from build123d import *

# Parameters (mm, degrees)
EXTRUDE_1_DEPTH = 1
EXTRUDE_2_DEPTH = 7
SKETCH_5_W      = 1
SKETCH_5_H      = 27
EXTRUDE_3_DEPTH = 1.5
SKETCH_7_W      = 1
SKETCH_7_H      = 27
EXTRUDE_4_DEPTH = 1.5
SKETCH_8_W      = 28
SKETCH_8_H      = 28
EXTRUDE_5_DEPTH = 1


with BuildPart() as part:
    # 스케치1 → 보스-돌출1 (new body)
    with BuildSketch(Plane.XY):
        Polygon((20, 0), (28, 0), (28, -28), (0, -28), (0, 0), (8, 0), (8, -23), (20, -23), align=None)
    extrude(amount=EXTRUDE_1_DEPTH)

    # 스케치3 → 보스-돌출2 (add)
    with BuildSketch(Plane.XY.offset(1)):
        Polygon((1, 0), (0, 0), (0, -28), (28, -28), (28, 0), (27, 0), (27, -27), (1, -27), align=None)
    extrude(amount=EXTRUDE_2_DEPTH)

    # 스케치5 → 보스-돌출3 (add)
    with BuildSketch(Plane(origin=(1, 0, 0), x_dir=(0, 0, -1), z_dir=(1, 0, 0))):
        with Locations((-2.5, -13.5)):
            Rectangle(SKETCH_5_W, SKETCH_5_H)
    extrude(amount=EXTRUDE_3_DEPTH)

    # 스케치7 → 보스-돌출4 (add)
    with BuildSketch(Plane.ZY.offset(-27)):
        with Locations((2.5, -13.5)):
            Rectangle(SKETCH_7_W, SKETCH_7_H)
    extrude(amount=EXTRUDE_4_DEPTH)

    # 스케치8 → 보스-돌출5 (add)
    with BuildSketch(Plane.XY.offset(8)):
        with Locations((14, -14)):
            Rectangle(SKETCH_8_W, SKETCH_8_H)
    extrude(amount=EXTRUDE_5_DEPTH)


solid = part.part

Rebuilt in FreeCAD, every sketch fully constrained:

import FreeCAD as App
import Part
import Sketcher

V = App.Vector
Q = App.Units.Quantity

doc = App.newDocument("Part")
body = doc.addObject("PartDesign::Body", "Body")

# Sketch on XY plane
sketch1 = body.newObject("Sketcher::SketchObject", "Sketch")
sketch1.AttachmentSupport = (doc.getObject("XY_Plane"), [""])
sketch1.MapMode = "FlatFace"
sketch1.addGeometry([
    Part.LineSegment(V(28, 0, 0), V(20, 0, 0)),  # 0
    Part.LineSegment(V(20, 0, 0), V(20, -23, 0)),  # 1
    Part.LineSegment(V(20, -23, 0), V(8, -23, 0)),  # 2
    Part.LineSegment(V(8, -23, 0), V(8, 0, 0)),  # 3
    Part.LineSegment(V(8, 0, 0), V(0, 0, 0)),  # 4
    Part.LineSegment(V(0, 0, 0), V(0, -28, 0)),  # 5
    Part.LineSegment(V(0, -28, 0), V(28, -28, 0)),  # 6
    Part.LineSegment(V(28, -28, 0), V(28, 0, 0)),  # 7
], False)
sketch1.addConstraint([
    Sketcher.Constraint("Coincident", 0, 2, 1, 1),
    Sketcher.Constraint("Coincident", 1, 2, 2, 1),
    Sketcher.Constraint("Coincident", 2, 2, 3, 1),
    Sketcher.Constraint("Coincident", 3, 2, 4, 1),
    Sketcher.Constraint("Coincident", 4, 2, 5, 1),
    Sketcher.Constraint("Coincident", 5, 2, 6, 1),
    Sketcher.Constraint("Coincident", 6, 2, 7, 1),
    Sketcher.Constraint("Coincident", 7, 2, 0, 1),
    Sketcher.Constraint("Horizontal", 0),
    Sketcher.Constraint("Vertical", 1),
    Sketcher.Constraint("Horizontal", 2),
    Sketcher.Constraint("Vertical", 3),
    Sketcher.Constraint("Horizontal", 4),
    Sketcher.Constraint("Vertical", 5),
    Sketcher.Constraint("Horizontal", 6),
    Sketcher.Constraint("Vertical", 7),
    Sketcher.Constraint("Coincident", 4, 2, -1, 1),
    Sketcher.Constraint("PointOnObject", 0, 2, -1),
    Sketcher.Constraint("Equal", 0, 4),
    Sketcher.Constraint("Equal", 6, 5),
    Sketcher.Constraint("DistanceX", 0, 2, 0, 1, Q("8 mm")),
    Sketcher.Constraint("DistanceX", 2, 2, 2, 1, Q("12 mm")),
    Sketcher.Constraint("DistanceY", 1, 2, 1, 1, Q("23 mm")),
])
pad1 = body.newObject("PartDesign::Pad", "Pad")
pad1.Profile = sketch1
pad1.Length = 1

# Sketch on XY plane
sketch2 = body.newObject("Sketcher::SketchObject", "Sketch001")
sketch2.AttachmentSupport = (doc.getObject("XY_Plane"), [""])
sketch2.MapMode = "FlatFace"
sketch2.AttachmentOffset = App.Placement(V(0, 0, 1), App.Rotation())
sketch2.addGeometry([
    Part.LineSegment(V(1, 0, 0), V(0, 0, 0)),  # 0
    Part.LineSegment(V(0, 0, 0), V(0, -28, 0)),  # 1
    Part.LineSegment(V(0, -28, 0), V(28, -28, 0)),  # 2
    Part.LineSegment(V(28, -28, 0), V(28, 0, 0)),  # 3
    Part.LineSegment(V(28, 0, 0), V(27, 0, 0)),  # 4
    Part.LineSegment(V(27, 0, 0), V(27, -27, 0)),  # 5
    Part.LineSegment(V(27, -27, 0), V(1, -27, 0)),  # 6
    Part.LineSegment(V(1, -27, 0), V(1, 0, 0)),  # 7
], False)
sketch2.addConstraint([
    Sketcher.Constraint("Coincident", 0, 2, 1, 1),
    Sketcher.Constraint("Coincident", 1, 2, 2, 1),
    Sketcher.Constraint("Coincident", 2, 2, 3, 1),
    Sketcher.Constraint("Coincident", 3, 2, 4, 1),
    Sketcher.Constraint("Coincident", 4, 2, 5, 1),
    Sketcher.Constraint("Coincident", 5, 2, 6, 1),
    Sketcher.Constraint("Coincident", 6, 2, 7, 1),
    Sketcher.Constraint("Coincident", 7, 2, 0, 1),
    Sketcher.Constraint("Horizontal", 0),
    Sketcher.Constraint("Vertical", 1),
    Sketcher.Constraint("Horizontal", 2),
    Sketcher.Constraint("Vertical", 3),
    Sketcher.Constraint("Horizontal", 4),
    Sketcher.Constraint("Vertical", 5),
    Sketcher.Constraint("Horizontal", 6),
    Sketcher.Constraint("Vertical", 7),
    Sketcher.Constraint("Coincident", 0, 2, -1, 1),
    Sketcher.Constraint("PointOnObject", 3, 2, -1),
    Sketcher.Constraint("Equal", 0, 4),
    Sketcher.Constraint("Equal", 2, 1),
    Sketcher.Constraint("DistanceX", 0, 2, 0, 1, Q("1 mm")),
    Sketcher.Constraint("DistanceX", 2, 1, 2, 2, Q("28 mm")),
    Sketcher.Constraint("DistanceY", 5, 2, 5, 1, Q("27 mm")),
])
pad2 = body.newObject("PartDesign::Pad", "Pad001")
pad2.Profile = sketch2
pad2.Length = 7

# Sketch on YZ plane
sketch3 = body.newObject("Sketcher::SketchObject", "Sketch002")
sketch3.AttachmentSupport = (doc.getObject("YZ_Plane"), [""])
sketch3.MapMode = "FlatFace"
sketch3.AttachmentOffset = App.Placement(V(0, 0, 1), App.Rotation())
sketch3.addGeometry([
    Part.LineSegment(V(0, 3, 0), V(-27, 3, 0)),
    Part.LineSegment(V(-27, 3, 0), V(-27, 2, 0)),
    Part.LineSegment(V(-27, 2, 0), V(0, 2, 0)),
    Part.LineSegment(V(0, 2, 0), V(0, 3, 0)),
], False)
sketch3.addConstraint([
    Sketcher.Constraint("Coincident", 0, 2, 1, 1),
    Sketcher.Constraint("Coincident", 1, 2, 2, 1),
    Sketcher.Constraint("Coincident", 2, 2, 3, 1),
    Sketcher.Constraint("Coincident", 3, 2, 0, 1),
    Sketcher.Constraint("Horizontal", 0),
    Sketcher.Constraint("Vertical", 1),
    Sketcher.Constraint("Horizontal", 2),
    Sketcher.Constraint("Vertical", 3),
    Sketcher.Constraint("PointOnObject", 2, 2, -2),
    Sketcher.Constraint("DistanceX", 0, 2, 0, 1, Q("27 mm")),
    Sketcher.Constraint("DistanceY", 1, 2, 1, 1, Q("1 mm")),
    Sketcher.Constraint("DistanceY", -1, 1, 0, 2, Q("3 mm")),
])
pad3 = body.newObject("PartDesign::Pad", "Pad002")
pad3.Profile = sketch3
pad3.Length = 1.5

# Sketch on YZ plane
sketch4 = body.newObject("Sketcher::SketchObject", "Sketch003")
sketch4.AttachmentSupport = (doc.getObject("YZ_Plane"), [""])
sketch4.MapMode = "FlatFace"
sketch4.AttachmentOffset = App.Placement(V(0, 0, 27), App.Rotation())
sketch4.addGeometry([
    Part.LineSegment(V(0, 2, 0), V(-27, 2, 0)),
    Part.LineSegment(V(-27, 2, 0), V(-27, 3, 0)),
    Part.LineSegment(V(-27, 3, 0), V(0, 3, 0)),
    Part.LineSegment(V(0, 3, 0), V(0, 2, 0)),
], False)
sketch4.addConstraint([
    Sketcher.Constraint("Coincident", 0, 2, 1, 1),
    Sketcher.Constraint("Coincident", 1, 2, 2, 1),
    Sketcher.Constraint("Coincident", 2, 2, 3, 1),
    Sketcher.Constraint("Coincident", 3, 2, 0, 1),
    Sketcher.Constraint("Horizontal", 0),
    Sketcher.Constraint("Vertical", 1),
    Sketcher.Constraint("Horizontal", 2),
    Sketcher.Constraint("Vertical", 3),
    Sketcher.Constraint("PointOnObject", 2, 2, -2),
    Sketcher.Constraint("DistanceX", 0, 2, 0, 1, Q("27 mm")),
    Sketcher.Constraint("DistanceY", 1, 1, 1, 2, Q("1 mm")),
    Sketcher.Constraint("DistanceY", -1, 1, 0, 2, Q("2 mm")),
])
pad4 = body.newObject("PartDesign::Pad", "Pad003")
pad4.Profile = sketch4
pad4.Length = 1.5
pad4.Reversed = True

# Sketch on XY plane
sketch5 = body.newObject("Sketcher::SketchObject", "Sketch004")
sketch5.AttachmentSupport = (doc.getObject("XY_Plane"), [""])
sketch5.MapMode = "FlatFace"
sketch5.AttachmentOffset = App.Placement(V(0, 0, 8), App.Rotation())
sketch5.addGeometry([
    Part.LineSegment(V(0, 0, 0), V(0, -28, 0)),
    Part.LineSegment(V(0, -28, 0), V(28, -28, 0)),
    Part.LineSegment(V(28, -28, 0), V(28, 0, 0)),
    Part.LineSegment(V(28, 0, 0), V(0, 0, 0)),
], False)
sketch5.addConstraint([
    Sketcher.Constraint("Coincident", 0, 2, 1, 1),
    Sketcher.Constraint("Coincident", 1, 2, 2, 1),
    Sketcher.Constraint("Coincident", 2, 2, 3, 1),
    Sketcher.Constraint("Coincident", 3, 2, 0, 1),
    Sketcher.Constraint("Vertical", 0),
    Sketcher.Constraint("Horizontal", 1),
    Sketcher.Constraint("Vertical", 2),
    Sketcher.Constraint("Horizontal", 3),
    Sketcher.Constraint("Coincident", 3, 2, -1, 1),
    Sketcher.Constraint("Equal", 3, 0),
    Sketcher.Constraint("DistanceX", 1, 1, 1, 2, Q("28 mm")),
])
pad5 = body.newObject("PartDesign::Pad", "Pad004")
pad5.Profile = sketch5
pad5.Length = 1

doc.recompute()
